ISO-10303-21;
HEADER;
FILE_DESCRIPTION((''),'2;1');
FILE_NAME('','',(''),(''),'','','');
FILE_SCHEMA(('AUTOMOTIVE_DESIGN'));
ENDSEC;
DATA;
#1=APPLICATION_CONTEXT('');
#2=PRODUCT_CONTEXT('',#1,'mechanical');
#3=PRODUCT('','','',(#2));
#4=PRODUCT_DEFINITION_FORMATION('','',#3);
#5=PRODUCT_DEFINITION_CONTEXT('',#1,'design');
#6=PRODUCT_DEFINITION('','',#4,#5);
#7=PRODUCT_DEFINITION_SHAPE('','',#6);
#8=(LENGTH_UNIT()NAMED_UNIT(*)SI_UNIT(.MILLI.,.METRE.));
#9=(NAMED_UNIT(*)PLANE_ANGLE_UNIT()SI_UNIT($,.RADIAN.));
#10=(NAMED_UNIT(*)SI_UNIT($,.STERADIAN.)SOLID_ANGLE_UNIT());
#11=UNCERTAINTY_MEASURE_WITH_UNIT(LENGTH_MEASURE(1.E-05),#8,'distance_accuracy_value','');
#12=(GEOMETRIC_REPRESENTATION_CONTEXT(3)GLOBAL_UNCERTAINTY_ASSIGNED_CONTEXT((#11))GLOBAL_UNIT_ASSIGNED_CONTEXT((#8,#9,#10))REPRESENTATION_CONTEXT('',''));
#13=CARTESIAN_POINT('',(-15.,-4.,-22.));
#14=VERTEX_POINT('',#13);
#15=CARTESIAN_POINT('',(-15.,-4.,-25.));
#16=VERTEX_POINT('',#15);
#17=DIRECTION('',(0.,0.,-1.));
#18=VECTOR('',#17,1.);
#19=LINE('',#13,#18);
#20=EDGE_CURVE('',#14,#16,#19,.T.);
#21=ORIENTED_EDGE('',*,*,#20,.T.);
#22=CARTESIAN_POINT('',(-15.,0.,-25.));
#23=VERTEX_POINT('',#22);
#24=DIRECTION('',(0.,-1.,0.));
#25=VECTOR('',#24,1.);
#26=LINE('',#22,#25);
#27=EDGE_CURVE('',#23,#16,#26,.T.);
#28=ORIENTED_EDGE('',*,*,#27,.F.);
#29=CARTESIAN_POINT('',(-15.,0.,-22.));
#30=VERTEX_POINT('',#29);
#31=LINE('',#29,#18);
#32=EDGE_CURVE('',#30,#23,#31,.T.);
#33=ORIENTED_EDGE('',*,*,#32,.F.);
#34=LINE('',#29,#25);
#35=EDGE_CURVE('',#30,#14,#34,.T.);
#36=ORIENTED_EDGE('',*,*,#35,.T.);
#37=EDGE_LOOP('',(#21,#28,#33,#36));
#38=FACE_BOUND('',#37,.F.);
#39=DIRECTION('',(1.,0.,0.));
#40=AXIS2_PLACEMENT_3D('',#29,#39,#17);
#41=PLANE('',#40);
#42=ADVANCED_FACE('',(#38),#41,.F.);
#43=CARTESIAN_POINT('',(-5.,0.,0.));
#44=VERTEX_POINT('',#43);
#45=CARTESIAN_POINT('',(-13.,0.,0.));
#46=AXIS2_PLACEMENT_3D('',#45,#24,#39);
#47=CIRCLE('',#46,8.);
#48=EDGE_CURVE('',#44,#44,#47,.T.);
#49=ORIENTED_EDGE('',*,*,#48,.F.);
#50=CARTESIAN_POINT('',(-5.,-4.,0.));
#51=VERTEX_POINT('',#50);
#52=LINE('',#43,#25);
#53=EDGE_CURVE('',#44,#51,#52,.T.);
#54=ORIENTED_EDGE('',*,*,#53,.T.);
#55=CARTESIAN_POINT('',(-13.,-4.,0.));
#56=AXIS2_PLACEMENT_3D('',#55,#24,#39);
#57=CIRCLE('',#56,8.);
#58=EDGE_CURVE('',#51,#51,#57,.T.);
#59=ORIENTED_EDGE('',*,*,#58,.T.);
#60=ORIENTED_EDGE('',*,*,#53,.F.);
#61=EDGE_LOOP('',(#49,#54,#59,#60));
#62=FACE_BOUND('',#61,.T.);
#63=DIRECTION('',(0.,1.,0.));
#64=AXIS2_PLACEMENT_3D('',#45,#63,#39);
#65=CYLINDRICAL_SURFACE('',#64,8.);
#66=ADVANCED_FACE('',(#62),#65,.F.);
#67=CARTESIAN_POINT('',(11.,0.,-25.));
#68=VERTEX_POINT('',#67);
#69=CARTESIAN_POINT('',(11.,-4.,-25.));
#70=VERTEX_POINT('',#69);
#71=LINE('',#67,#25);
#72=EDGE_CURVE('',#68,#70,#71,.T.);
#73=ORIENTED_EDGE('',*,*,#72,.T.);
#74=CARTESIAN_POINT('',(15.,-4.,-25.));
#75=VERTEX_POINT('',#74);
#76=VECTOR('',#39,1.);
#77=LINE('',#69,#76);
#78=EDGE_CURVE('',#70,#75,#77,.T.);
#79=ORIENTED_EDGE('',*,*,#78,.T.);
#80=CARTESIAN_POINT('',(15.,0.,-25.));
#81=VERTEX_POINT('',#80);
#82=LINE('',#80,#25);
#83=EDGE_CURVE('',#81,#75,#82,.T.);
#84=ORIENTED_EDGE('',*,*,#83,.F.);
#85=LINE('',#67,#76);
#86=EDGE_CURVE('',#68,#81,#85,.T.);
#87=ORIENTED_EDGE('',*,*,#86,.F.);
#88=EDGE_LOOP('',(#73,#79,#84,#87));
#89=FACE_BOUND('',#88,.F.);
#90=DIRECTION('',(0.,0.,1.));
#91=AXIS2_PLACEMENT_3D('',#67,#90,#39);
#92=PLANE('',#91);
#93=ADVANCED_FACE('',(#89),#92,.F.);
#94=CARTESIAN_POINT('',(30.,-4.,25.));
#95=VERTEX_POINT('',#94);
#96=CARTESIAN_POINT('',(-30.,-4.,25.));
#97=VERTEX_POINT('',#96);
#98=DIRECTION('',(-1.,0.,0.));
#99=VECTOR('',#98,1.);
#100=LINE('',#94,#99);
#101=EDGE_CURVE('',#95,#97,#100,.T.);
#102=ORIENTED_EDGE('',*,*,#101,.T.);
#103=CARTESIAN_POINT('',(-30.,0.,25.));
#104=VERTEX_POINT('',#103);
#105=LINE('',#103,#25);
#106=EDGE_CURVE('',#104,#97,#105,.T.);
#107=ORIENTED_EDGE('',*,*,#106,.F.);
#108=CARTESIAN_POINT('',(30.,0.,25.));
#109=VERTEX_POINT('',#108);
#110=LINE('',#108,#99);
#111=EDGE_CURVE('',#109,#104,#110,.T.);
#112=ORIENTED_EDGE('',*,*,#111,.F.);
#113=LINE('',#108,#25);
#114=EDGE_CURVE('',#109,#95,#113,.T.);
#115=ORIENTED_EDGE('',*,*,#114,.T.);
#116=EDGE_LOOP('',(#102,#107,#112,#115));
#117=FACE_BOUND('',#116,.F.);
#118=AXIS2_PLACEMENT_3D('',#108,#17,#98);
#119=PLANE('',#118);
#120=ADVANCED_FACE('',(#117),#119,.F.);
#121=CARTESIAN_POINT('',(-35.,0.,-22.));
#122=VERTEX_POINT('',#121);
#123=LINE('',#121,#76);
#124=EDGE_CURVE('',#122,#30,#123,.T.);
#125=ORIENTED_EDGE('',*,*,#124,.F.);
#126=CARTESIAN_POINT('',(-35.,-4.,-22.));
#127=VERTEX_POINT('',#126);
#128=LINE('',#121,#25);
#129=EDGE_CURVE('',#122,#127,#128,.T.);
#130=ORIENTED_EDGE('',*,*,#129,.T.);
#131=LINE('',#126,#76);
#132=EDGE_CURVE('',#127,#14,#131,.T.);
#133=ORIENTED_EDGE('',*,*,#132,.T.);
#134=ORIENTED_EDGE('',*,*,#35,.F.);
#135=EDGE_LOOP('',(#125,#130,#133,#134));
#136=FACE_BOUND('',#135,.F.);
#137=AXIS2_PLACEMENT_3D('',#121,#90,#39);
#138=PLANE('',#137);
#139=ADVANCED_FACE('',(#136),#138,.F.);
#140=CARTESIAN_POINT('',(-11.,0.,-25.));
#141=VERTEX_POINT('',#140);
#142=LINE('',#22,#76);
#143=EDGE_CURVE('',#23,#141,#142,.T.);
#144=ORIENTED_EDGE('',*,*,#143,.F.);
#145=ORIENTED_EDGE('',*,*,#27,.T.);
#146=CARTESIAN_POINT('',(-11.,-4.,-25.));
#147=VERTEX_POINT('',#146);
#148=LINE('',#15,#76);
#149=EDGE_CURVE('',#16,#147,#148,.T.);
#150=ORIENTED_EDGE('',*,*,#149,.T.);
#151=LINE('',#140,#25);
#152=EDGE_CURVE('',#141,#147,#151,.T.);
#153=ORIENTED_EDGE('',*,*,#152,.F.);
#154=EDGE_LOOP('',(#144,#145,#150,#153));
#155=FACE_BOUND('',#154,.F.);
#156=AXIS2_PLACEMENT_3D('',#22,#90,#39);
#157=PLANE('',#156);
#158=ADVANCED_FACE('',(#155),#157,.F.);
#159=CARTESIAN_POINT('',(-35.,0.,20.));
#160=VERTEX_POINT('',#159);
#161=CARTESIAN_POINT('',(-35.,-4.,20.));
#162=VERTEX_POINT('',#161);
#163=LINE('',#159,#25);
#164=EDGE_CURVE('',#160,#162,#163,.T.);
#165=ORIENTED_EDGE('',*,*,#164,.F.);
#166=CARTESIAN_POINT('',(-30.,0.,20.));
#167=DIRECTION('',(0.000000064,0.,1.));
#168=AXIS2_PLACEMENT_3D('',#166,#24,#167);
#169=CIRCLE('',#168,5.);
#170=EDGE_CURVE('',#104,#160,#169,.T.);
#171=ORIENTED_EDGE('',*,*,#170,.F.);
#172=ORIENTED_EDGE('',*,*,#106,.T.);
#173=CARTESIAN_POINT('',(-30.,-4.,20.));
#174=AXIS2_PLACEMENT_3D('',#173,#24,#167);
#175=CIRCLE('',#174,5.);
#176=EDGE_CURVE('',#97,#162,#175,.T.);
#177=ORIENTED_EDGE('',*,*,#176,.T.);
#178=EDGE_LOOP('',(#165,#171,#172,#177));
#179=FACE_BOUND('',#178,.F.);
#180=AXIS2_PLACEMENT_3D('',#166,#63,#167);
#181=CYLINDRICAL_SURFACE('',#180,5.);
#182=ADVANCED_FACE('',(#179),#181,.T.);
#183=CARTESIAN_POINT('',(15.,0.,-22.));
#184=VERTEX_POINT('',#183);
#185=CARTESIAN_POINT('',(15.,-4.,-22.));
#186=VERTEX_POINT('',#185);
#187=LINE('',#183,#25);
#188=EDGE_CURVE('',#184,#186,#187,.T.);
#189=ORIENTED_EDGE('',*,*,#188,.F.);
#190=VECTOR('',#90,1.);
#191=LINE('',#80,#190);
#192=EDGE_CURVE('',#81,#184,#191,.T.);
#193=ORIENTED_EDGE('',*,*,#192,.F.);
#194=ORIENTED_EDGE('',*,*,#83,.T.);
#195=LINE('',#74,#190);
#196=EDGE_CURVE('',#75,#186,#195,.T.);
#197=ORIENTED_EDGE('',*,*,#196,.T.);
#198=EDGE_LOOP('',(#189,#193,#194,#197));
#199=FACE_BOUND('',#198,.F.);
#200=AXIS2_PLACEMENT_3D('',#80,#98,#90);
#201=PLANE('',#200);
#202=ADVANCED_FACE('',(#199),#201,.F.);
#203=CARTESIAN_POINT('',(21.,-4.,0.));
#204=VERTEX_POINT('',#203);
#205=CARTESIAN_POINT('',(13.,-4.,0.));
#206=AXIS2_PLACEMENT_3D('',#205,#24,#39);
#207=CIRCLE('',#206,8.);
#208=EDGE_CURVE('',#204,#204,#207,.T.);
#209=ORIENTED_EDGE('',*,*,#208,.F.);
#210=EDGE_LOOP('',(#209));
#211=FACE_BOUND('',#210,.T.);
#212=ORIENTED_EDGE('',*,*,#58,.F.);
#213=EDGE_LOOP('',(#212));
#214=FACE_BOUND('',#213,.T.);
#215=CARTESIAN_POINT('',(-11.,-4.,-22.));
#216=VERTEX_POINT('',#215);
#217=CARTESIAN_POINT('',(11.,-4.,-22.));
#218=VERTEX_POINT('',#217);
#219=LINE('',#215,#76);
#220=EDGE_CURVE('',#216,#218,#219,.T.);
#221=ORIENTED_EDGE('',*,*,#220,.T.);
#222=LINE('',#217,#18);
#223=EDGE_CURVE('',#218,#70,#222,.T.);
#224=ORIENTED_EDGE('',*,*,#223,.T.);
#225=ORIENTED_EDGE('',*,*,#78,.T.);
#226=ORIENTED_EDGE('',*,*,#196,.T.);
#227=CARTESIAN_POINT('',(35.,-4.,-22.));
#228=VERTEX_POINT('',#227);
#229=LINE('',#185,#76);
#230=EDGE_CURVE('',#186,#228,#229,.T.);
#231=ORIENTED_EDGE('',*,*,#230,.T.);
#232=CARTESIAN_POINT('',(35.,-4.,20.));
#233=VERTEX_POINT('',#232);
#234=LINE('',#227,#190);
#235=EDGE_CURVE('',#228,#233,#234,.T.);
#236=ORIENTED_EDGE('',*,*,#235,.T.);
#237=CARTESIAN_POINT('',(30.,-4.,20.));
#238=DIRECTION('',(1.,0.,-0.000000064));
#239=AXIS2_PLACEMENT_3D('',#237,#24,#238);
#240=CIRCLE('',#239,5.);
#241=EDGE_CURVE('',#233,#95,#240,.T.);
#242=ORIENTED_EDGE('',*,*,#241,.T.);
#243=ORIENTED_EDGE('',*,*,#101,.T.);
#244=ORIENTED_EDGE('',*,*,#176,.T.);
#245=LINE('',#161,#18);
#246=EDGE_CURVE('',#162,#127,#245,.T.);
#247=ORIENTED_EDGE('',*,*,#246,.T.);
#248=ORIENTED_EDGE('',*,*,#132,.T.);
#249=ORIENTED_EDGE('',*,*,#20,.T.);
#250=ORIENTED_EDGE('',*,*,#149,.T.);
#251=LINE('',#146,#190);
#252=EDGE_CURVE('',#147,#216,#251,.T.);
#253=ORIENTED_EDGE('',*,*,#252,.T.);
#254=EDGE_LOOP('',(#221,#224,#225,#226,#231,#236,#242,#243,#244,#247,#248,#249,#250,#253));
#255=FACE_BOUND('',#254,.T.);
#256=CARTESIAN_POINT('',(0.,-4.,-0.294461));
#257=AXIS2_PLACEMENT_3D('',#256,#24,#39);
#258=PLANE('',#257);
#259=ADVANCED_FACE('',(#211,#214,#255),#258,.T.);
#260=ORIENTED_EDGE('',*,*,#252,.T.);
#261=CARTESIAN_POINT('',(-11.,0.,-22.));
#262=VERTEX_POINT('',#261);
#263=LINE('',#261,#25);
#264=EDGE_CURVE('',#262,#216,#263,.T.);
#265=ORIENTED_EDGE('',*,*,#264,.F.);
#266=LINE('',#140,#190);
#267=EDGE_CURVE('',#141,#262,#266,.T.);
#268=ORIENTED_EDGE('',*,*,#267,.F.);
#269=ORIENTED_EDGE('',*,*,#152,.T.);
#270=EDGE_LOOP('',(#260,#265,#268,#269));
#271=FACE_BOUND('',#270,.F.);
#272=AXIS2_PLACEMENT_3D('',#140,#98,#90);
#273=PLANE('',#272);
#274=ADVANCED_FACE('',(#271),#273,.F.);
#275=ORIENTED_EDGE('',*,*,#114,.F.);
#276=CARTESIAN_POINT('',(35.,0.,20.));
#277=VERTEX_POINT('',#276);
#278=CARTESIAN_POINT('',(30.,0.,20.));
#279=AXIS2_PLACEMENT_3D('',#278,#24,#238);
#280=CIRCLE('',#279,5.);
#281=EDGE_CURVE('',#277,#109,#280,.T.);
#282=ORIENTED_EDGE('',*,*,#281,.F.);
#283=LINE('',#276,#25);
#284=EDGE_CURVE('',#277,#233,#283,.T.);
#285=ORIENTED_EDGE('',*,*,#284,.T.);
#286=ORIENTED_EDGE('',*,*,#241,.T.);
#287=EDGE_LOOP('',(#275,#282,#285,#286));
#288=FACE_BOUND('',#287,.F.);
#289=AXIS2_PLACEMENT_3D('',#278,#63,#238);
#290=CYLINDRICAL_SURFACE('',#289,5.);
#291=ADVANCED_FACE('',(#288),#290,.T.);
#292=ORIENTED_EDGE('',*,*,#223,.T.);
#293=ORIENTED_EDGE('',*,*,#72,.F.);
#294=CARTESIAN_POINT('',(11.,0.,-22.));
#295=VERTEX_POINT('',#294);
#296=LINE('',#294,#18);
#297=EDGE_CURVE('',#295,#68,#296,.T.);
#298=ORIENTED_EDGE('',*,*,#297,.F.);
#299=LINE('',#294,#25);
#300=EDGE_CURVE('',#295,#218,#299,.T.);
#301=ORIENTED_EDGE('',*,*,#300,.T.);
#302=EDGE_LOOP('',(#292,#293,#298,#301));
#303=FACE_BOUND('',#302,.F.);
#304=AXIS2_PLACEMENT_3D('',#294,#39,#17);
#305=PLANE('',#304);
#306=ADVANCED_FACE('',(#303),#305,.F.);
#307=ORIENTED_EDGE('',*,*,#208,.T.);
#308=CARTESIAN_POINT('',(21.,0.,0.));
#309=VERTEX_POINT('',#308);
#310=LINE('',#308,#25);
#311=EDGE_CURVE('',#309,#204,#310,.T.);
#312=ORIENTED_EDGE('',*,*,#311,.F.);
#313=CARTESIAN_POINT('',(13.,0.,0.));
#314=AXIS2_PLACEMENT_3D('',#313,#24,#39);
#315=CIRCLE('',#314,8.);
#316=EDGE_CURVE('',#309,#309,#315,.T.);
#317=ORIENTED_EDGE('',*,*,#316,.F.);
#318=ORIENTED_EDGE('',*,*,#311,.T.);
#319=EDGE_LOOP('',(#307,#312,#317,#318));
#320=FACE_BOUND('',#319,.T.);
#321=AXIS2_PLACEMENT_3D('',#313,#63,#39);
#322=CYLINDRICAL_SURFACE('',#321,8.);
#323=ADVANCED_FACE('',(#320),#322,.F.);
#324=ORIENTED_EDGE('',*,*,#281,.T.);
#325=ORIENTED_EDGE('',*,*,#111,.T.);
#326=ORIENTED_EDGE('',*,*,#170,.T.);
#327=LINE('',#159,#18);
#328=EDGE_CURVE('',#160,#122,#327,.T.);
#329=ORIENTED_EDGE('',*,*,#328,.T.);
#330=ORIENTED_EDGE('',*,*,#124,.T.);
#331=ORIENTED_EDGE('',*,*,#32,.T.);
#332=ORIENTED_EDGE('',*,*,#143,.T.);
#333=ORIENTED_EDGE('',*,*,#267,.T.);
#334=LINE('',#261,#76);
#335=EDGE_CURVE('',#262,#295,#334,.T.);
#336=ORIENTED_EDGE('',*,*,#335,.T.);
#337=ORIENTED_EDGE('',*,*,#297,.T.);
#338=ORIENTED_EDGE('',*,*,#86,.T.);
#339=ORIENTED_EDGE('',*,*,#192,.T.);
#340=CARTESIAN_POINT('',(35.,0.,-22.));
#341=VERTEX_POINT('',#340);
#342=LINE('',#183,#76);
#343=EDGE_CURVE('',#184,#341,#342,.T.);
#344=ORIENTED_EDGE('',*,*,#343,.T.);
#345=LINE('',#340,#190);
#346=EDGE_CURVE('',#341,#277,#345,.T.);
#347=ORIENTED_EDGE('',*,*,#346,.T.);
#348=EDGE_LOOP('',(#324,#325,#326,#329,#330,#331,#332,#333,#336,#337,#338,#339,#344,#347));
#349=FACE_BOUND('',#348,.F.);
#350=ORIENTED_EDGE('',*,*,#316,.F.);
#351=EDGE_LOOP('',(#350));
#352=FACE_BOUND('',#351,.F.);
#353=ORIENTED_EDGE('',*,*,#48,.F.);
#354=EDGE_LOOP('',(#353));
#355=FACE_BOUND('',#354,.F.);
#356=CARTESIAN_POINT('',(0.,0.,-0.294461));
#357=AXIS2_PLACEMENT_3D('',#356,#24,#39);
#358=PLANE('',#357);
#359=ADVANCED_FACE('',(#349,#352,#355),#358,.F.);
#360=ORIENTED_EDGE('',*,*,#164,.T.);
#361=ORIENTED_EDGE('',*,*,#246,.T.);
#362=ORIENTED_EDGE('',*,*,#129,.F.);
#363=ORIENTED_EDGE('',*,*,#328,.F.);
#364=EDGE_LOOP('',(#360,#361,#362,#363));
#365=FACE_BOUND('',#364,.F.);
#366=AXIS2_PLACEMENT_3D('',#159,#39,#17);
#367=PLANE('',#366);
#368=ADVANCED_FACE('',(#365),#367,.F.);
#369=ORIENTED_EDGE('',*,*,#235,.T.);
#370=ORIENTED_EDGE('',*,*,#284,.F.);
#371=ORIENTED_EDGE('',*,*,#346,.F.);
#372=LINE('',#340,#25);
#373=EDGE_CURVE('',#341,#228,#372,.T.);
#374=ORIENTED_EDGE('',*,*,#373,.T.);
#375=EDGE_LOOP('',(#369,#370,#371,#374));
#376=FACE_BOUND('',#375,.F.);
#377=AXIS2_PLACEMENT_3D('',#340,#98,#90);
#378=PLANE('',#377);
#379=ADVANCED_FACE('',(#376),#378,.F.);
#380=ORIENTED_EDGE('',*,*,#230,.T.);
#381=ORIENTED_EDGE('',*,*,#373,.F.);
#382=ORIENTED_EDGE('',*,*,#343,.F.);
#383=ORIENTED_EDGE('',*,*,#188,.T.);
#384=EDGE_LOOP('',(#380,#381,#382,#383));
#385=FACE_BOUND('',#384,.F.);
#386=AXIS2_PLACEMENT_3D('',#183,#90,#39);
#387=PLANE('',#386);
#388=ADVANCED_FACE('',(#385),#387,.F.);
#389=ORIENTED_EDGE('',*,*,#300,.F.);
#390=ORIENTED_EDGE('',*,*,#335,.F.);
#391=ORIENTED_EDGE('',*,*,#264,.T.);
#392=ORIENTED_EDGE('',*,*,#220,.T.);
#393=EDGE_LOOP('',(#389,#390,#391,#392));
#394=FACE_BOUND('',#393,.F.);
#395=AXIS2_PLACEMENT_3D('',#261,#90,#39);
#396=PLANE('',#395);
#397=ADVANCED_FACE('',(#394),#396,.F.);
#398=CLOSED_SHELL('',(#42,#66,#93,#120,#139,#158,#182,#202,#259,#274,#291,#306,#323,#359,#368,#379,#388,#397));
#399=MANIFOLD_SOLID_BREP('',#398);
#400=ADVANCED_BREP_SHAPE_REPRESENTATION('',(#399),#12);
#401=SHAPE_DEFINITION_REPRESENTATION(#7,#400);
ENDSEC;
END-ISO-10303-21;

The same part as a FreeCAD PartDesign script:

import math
import FreeCAD as App
import Part
import Sketcher
from FreeCAD import Vector
Q = App.Units.Quantity

doc = App.newDocument("Part")
body = doc.addObject("PartDesign::Body", "Body")

# Sketch on XZ plane
sketch1 = body.newObject("Sketcher::SketchObject", "Sketch")
sketch1.AttachmentSupport = (doc.getObject("XZ_Plane"), [""])
sketch1.MapMode = "FlatFace"
sketch1.addGeometry([
    Part.LineSegment(Vector(30, 25, 0), Vector(-30, 25, 0)),  # 0
    Part.ArcOfCircle(Part.Circle(Vector(-30, 20, 0), Vector(0, 0, 1), 5), math.radians(89.999996), math.radians(180.000004)),  # 1
    Part.LineSegment(Vector(-35, 20, 0), Vector(-35, -22, 0)),  # 2
    Part.LineSegment(Vector(-35, -22, 0), Vector(-15, -22, 0)),  # 3
    Part.LineSegment(Vector(-15, -22, 0), Vector(-15, -25, 0)),  # 4
    Part.LineSegment(Vector(-15, -25, 0), Vector(-11, -25, 0)),  # 5
    Part.LineSegment(Vector(-11, -25, 0), Vector(-11, -22, 0)),  # 6
    Part.LineSegment(Vector(-11, -22, 0), Vector(11, -22, 0)),  # 7
    Part.LineSegment(Vector(11, -22, 0), Vector(11, -25, 0)),  # 8
    Part.LineSegment(Vector(11, -25, 0), Vector(15, -25, 0)),  # 9
    Part.LineSegment(Vector(15, -25, 0), Vector(15, -22, 0)),  # 10
    Part.LineSegment(Vector(15, -22, 0), Vector(35, -22, 0)),  # 11
    Part.LineSegment(Vector(35, -22, 0), Vector(35, 20, 0)),  # 12
    Part.ArcOfCircle(Part.Circle(Vector(30, 20, 0), Vector(0, 0, 1), 5), math.radians(-0.000004), math.radians(90.000004)),  # 13
    Part.Circle(Vector(-13, 0, 0), Vector(0, 0, 1), 8),  # 14
    Part.Circle(Vector(13, 0, 0), Vector(0, 0, 1), 8),  # 15
], False)
sketch1.addConstraint([
    Sketcher.Constraint("Tangent", 0, 2, 1, 1),
    Sketcher.Constraint("Tangent", 1, 2, 2, 1),
    Sketcher.Constraint("Coincident", 2, 2, 3, 1),
    Sketcher.Constraint("Coincident", 3, 2, 4, 1),
    Sketcher.Constraint("Coincident", 4, 2, 5, 1),
    Sketcher.Constraint("Coincident", 5, 2, 6, 1),
    Sketcher.Constraint("Coincident", 6, 2, 7, 1),
    Sketcher.Constraint("Coincident", 7, 2, 8, 1),
    Sketcher.Constraint("Coincident", 8, 2, 9, 1),
    Sketcher.Constraint("Coincident", 9, 2, 10, 1),
    Sketcher.Constraint("Coincident", 10, 2, 11, 1),
    Sketcher.Constraint("Coincident", 11, 2, 12, 1),
    Sketcher.Constraint("Tangent", 12, 2, 13, 1),
    Sketcher.Constraint("Tangent", 13, 2, 0, 1),
    Sketcher.Constraint("Horizontal", 0),
    Sketcher.Constraint("Vertical", 2),
    Sketcher.Constraint("Horizontal", 3),
    Sketcher.Constraint("Vertical", 4),
    Sketcher.Constraint("Horizontal", 5),
    Sketcher.Constraint("Vertical", 6),
    Sketcher.Constraint("Horizontal", 7),
    Sketcher.Constraint("Vertical", 8),
    Sketcher.Constraint("Horizontal", 9),
    Sketcher.Constraint("Vertical", 10),
    Sketcher.Constraint("Horizontal", 11),
    Sketcher.Constraint("Vertical", 12),
    Sketcher.Constraint("Equal", 1, 13),
    Sketcher.Constraint("Equal", 14, 15),
    Sketcher.Constraint("Symmetric", 14, 3, 15, 3, -1, 1),
    Sketcher.Constraint("Symmetric", 5, 2, 8, 2, -2),
    Sketcher.Constraint("Symmetric", 3, 2, 10, 2, -2),
    Sketcher.Constraint("PointOnObject", 14, 3, -1),
    Sketcher.Constraint("Horizontal", 3, 2, 6, 2),
    Sketcher.Constraint("Equal", 3, 11),
    Sketcher.Constraint("Diameter", 14, Q("16 mm")),
    Sketcher.Constraint("Radius", 1, Q("5 mm")),
    Sketcher.Constraint("DistanceX", 0, 2, 0, 1, Q("60 mm")),
    Sketcher.Constraint("DistanceX", 3, 1, 3, 2, Q("20 mm")),
    Sketcher.Constraint("DistanceX", 5, 1, 5, 2, Q("4 mm")),
    Sketcher.Constraint("DistanceY", 2, 2, 2, 1, Q("42 mm")),
    Sketcher.Constraint("DistanceY", 4, 2, 4, 1, Q("3 mm")),
    Sketcher.Constraint("DistanceY", -1, 1, 1, 3, Q("20 mm")),
    Sketcher.Constraint("DistanceX", 14, 3, -1, 1, Q("13 mm")),
])
pad1 = body.newObject("PartDesign::Pad", "Pad")
pad1.Profile = sketch1
pad1.Length = 4

doc.recompute()
